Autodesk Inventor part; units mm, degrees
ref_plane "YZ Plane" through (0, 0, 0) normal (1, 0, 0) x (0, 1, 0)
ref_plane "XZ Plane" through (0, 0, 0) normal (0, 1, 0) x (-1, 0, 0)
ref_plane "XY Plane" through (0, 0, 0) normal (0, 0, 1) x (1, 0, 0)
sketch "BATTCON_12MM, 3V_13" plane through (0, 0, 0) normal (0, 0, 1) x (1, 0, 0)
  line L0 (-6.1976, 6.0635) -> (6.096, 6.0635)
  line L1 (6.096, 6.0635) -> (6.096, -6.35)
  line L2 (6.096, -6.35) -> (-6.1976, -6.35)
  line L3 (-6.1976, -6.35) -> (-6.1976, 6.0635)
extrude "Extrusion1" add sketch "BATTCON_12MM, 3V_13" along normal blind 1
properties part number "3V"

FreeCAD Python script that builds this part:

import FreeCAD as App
import Part
import Sketcher

V = App.Vector
Q = App.Units.Quantity

doc = App.newDocument("Part")
params = doc.addObject("Spreadsheet::Sheet", "Params")
for row, (alias, value) in enumerate([
    ("pad1_length", "1 mm"),
], start=1):
    params.set(f"A{row}", alias)
    params.set(f"B{row}", "=" + value)
    params.setAlias(f"B{row}", alias)

body = doc.addObject("PartDesign::Body", "Body")

sketch1 = doc.addObject("Sketcher::SketchObject", "Sketch")
body.addObject(sketch1)
sketch1.AttachmentSupport = (doc.XY_Plane, [""])
sketch1.MapMode = "FlatFace"
sketch1.addGeometry(Part.LineSegment(V(6, 6, 0), V(-6, 6, 0)), False)
sketch1.addGeometry(Part.LineSegment(V(-6, 6, 0), V(-6, -6, 0)), False)
sketch1.addGeometry(Part.LineSegment(V(-6, -6, 0), V(6, -6, 0)), False)
sketch1.addGeometry(Part.LineSegment(V(6, -6, 0), V(6, 6, 0)), False)
sketch1.addConstraint(Sketcher.Constraint("Coincident", 0, 2, 1, 1))
sketch1.addConstraint(Sketcher.Constraint("Coincident", 1, 2, 2, 1))
sketch1.addConstraint(Sketcher.Constraint("Coincident", 2, 2, 3, 1))
sketch1.addConstraint(Sketcher.Constraint("Coincident", 3, 2, 0, 1))
sketch1.addConstraint(Sketcher.Constraint("Horizontal", 0))
sketch1.addConstraint(Sketcher.Constraint("Vertical", 1))
sketch1.addConstraint(Sketcher.Constraint("Horizontal", 2))
sketch1.addConstraint(Sketcher.Constraint("Vertical", 3))
sketch1.addConstraint(Sketcher.Constraint("DistanceY", 1, 2, -1, 1, Q("6.35 mm")))
sketch1.addConstraint(Sketcher.Constraint("DistanceX", 0, 2, 0, 1, Q("12.2936 mm")))
sketch1.addConstraint(Sketcher.Constraint("DistanceY", 1, 2, 1, 1, Q("12.4135 mm")))
sketch1.addConstraint(Sketcher.Constraint("DistanceX", -1, 1, 2, 2, Q("6.096 mm")))
pad1 = doc.addObject("PartDesign::Pad", "Pad")
body.addObject(pad1)
pad1.Profile = sketch1
pad1.setExpression("Length", "Params.pad1_length")

doc.recompute()
